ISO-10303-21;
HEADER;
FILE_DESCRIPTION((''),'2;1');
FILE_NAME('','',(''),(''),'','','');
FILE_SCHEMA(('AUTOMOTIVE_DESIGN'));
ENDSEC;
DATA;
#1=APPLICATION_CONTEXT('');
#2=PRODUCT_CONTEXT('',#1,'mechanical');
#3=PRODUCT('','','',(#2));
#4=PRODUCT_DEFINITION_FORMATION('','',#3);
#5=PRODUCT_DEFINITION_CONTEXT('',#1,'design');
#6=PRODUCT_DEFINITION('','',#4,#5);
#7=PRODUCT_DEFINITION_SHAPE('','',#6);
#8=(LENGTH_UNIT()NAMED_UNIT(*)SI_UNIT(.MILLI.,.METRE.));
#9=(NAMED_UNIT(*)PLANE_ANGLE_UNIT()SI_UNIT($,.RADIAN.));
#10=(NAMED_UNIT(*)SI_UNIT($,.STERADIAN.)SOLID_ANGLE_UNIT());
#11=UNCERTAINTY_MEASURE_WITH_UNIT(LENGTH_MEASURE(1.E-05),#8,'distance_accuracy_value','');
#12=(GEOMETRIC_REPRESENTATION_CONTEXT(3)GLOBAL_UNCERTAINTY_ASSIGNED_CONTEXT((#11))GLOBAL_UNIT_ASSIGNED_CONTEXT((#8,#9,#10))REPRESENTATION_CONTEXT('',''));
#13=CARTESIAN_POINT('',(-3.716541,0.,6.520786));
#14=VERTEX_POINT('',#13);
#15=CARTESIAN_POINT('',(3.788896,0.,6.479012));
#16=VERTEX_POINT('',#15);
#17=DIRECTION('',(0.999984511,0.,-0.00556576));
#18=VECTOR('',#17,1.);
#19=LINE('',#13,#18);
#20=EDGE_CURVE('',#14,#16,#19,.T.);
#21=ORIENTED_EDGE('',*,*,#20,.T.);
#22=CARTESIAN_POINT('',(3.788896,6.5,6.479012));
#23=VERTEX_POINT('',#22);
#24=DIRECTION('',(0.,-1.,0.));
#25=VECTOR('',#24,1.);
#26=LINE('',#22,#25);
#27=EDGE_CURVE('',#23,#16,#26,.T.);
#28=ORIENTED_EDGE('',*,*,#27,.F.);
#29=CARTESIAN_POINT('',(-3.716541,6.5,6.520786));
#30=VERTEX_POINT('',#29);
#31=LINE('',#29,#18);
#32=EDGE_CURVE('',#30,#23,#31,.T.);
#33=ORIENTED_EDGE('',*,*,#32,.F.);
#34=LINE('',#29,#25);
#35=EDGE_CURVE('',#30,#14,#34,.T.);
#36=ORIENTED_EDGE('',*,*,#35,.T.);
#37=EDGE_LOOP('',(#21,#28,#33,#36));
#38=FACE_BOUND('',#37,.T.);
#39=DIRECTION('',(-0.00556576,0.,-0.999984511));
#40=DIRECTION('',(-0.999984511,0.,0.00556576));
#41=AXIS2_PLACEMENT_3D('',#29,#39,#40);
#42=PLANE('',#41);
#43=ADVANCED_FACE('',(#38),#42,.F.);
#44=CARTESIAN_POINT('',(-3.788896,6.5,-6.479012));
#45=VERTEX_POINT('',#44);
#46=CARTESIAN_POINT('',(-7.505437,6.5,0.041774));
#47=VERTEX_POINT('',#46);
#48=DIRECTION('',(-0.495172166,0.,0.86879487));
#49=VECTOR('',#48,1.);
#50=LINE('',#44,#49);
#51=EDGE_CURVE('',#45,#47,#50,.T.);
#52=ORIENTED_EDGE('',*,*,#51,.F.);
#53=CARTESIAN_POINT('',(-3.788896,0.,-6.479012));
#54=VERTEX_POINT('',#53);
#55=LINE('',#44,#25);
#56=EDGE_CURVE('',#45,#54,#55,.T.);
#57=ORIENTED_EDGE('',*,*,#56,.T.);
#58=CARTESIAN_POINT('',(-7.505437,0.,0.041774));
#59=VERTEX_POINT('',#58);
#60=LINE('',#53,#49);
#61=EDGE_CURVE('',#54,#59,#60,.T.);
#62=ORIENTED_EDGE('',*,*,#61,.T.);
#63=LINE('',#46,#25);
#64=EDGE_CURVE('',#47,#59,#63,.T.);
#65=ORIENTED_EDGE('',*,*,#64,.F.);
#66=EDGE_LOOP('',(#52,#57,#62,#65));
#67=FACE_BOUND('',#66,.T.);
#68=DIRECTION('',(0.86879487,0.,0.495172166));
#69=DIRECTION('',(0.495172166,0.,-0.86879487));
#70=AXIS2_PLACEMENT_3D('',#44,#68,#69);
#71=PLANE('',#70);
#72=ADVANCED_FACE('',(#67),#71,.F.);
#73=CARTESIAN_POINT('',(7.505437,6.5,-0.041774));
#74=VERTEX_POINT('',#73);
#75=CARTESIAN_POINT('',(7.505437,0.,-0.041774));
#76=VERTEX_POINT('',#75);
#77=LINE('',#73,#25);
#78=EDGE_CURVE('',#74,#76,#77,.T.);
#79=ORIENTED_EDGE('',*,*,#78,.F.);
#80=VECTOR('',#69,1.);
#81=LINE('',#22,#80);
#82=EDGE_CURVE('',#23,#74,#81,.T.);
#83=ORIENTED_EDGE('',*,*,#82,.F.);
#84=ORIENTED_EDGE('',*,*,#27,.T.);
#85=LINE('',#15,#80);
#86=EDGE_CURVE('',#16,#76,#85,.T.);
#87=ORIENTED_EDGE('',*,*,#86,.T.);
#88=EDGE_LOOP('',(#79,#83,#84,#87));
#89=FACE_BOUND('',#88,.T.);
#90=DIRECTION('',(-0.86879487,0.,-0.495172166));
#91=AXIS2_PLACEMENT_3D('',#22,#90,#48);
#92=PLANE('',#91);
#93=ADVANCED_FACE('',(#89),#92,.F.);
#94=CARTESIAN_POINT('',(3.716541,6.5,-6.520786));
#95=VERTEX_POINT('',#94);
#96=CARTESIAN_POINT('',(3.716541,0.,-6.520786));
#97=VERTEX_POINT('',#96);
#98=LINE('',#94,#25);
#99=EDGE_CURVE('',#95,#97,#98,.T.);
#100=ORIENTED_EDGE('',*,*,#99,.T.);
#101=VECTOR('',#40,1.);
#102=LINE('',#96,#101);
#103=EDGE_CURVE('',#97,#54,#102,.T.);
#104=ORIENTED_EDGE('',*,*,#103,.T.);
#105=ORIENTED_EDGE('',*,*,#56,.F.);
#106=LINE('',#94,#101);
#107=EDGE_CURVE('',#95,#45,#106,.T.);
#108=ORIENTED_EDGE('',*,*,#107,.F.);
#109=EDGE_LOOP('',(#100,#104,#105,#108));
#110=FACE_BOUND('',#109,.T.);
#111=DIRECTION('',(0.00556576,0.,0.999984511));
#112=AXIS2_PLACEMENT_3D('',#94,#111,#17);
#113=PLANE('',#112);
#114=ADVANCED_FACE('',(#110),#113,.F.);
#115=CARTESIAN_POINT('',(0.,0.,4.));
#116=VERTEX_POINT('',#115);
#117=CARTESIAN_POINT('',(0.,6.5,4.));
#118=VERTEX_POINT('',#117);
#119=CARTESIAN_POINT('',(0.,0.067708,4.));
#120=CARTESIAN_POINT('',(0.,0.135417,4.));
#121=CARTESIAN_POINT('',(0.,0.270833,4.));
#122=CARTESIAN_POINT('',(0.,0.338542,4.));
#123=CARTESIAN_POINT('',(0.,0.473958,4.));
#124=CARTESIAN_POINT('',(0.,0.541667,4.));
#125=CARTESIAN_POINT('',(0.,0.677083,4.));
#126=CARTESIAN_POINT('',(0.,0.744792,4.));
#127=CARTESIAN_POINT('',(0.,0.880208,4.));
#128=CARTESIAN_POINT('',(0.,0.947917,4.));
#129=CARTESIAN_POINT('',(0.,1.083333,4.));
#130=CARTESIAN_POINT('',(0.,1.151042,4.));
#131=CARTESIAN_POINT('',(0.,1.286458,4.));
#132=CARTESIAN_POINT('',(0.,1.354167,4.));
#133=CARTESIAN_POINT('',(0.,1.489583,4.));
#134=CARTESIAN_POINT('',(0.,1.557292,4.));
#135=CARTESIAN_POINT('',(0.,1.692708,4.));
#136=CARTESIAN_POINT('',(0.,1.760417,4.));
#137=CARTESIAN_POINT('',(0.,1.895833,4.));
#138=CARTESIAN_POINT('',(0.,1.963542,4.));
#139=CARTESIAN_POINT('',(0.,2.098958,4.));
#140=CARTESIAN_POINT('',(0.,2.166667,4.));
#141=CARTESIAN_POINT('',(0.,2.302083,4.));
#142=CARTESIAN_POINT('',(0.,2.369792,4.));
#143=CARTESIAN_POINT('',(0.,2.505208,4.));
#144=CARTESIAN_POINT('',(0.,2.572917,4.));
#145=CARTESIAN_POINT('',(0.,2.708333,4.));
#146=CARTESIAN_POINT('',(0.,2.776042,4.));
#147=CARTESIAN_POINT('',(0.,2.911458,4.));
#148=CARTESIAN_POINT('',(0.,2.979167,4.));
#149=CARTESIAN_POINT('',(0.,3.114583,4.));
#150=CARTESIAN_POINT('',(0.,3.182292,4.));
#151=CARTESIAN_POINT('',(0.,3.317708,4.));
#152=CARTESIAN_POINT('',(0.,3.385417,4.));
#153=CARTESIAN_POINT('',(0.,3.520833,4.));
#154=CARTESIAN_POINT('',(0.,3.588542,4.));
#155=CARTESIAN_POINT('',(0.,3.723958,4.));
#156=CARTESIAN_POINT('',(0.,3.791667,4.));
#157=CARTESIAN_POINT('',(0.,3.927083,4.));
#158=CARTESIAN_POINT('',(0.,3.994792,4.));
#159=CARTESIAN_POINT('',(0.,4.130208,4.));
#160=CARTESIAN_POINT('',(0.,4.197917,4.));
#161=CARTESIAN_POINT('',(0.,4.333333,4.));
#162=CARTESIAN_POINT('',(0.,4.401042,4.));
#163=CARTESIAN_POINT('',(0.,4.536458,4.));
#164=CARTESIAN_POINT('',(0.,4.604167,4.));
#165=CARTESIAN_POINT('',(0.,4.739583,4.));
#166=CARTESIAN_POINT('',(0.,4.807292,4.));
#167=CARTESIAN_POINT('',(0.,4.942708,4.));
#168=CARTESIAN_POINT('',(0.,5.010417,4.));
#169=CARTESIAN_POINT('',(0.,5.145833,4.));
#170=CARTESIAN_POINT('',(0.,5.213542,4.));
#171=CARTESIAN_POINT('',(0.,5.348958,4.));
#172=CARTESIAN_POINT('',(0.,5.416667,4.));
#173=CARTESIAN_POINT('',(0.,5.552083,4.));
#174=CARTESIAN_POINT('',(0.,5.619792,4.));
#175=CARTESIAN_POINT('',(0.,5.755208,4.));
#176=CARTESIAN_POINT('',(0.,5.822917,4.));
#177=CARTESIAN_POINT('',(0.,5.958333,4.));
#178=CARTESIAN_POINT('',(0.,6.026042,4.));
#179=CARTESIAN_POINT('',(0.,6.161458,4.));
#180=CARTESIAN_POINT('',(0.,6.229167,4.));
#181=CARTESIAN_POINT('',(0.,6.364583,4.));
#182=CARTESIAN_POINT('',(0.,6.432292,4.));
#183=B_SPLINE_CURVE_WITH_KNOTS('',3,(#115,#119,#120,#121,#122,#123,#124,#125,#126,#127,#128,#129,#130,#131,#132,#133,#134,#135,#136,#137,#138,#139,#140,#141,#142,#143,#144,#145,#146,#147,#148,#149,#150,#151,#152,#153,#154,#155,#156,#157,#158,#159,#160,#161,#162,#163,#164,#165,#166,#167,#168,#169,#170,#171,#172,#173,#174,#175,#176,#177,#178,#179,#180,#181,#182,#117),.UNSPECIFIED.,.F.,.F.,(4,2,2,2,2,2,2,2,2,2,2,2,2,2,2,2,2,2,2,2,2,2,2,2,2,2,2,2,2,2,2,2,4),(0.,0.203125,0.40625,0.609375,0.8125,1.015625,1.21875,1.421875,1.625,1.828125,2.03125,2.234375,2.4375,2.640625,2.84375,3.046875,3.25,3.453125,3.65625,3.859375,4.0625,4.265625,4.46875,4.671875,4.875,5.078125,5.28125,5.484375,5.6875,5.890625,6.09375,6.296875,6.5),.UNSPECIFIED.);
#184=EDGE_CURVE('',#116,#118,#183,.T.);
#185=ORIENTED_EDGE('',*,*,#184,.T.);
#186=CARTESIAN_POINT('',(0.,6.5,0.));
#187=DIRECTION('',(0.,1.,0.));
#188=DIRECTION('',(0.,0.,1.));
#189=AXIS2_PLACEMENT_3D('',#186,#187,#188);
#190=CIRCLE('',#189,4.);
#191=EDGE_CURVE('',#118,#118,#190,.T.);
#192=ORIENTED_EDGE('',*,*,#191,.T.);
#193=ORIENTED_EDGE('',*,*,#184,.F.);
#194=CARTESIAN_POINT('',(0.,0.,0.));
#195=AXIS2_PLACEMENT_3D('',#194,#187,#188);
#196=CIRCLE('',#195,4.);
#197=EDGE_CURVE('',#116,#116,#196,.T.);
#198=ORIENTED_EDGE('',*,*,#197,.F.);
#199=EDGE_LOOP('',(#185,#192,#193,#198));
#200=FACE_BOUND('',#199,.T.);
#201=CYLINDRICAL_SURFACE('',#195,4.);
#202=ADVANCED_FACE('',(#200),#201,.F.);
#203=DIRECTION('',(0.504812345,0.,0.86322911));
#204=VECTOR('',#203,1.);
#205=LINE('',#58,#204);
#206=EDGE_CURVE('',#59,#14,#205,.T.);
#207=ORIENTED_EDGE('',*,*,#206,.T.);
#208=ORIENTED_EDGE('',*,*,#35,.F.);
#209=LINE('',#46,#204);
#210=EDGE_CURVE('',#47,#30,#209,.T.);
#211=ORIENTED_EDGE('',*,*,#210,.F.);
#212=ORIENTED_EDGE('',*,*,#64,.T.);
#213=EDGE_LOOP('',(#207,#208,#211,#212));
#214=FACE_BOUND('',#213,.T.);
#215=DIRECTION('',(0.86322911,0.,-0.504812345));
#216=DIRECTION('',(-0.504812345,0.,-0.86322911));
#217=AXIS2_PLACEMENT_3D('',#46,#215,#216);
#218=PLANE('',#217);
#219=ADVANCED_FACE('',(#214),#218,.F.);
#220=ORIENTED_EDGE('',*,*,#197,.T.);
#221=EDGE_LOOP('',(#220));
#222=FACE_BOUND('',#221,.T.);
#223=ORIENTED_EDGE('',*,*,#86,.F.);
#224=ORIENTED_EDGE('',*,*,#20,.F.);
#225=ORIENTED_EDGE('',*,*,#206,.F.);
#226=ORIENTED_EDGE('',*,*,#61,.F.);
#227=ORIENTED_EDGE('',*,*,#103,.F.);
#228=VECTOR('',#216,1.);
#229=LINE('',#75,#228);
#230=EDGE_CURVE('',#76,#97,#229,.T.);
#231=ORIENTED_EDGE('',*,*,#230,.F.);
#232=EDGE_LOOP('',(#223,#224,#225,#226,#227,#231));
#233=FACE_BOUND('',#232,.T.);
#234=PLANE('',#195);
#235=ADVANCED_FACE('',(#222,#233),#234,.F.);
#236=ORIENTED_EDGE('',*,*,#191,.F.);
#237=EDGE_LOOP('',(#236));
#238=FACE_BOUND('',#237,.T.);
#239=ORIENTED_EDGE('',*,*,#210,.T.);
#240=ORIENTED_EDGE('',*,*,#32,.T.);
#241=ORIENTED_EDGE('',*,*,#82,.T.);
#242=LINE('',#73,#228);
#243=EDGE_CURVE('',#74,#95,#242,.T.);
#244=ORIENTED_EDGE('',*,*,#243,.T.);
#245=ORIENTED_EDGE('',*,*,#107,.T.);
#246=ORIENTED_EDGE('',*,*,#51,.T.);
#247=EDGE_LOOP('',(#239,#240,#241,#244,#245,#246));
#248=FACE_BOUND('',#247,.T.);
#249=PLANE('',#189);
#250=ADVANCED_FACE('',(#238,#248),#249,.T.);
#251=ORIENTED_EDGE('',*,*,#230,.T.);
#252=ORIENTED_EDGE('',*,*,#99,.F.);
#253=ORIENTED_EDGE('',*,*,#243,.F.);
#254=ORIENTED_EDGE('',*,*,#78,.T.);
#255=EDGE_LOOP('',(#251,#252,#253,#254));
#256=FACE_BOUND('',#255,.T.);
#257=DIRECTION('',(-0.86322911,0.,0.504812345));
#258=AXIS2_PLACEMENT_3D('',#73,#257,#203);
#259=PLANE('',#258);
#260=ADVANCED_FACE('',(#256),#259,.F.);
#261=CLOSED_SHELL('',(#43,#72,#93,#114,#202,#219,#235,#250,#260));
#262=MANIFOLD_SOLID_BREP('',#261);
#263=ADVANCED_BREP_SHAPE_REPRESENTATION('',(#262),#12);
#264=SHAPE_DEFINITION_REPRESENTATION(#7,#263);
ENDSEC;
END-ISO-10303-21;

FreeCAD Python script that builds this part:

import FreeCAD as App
import Part
import Sketcher

V = App.Vector
Q = App.Units.Quantity


def add_polygon(sketch, points):
    """Adds a closed chain of lines whose ends are joined by coincident constraints."""
    first, n = sketch.GeometryCount, len(points)
    for a, b in zip(points, points[1:] + points[:1]):
        sketch.addGeometry(Part.LineSegment(App.Vector(*a, 0), App.Vector(*b, 0)), False)
    for i in range(n):
        sketch.addConstraint(Sketcher.Constraint("Coincident", first + i, 2, first + (i + 1) % n, 1))

doc = App.newDocument("Part")
body = doc.addObject("PartDesign::Body", "Body")

# Sketch on XZ plane
sketch1 = doc.addObject("Sketcher::SketchObject", "Sketch")
body.addObject(sketch1)
sketch1.AttachmentSupport = (doc.XZ_Plane, [""])
sketch1.MapMode = "FlatFace"
add_polygon(sketch1, [(3.788896, 6.479012), (7.505437, -0.041774), (3.716541, -6.520786), (-3.788896, -6.479012), (-7.505437, 0.041774), (-3.716541, 6.520786)])  # lines 0-5
sketch1.addConstraint([
    Sketcher.Constraint("Symmetric", 0, 2, 3, 2, -1, 1),
    Sketcher.Constraint("Symmetric", 1, 2, 4, 2, -1, 1),
    Sketcher.Constraint("Symmetric", 2, 2, 5, 2, -1, 1),
    Sketcher.Constraint("Equal", 0, 1),
    Sketcher.Constraint("Equal", 1, 2),
    Sketcher.Constraint("DistanceY", 2, 2, 4, 2, Q("12.999799 mm")),
    Sketcher.Constraint("DistanceX", -1, 1, 1, 2, Q("3.716541 mm")),
    Sketcher.Constraint("DistanceY", 2, 2, 0, 2, Q("6.437238 mm")),
    Sketcher.Constraint("DistanceX", 3, 2, 2, 2, Q("3.716541 mm")),
])
pad1 = doc.addObject("PartDesign::Pad", "Pad")
body.addObject(pad1)
pad1.Profile = sketch1
pad1.Length = 6.5
pad1.Reversed = True

# Sketch on XZ plane
sketch2 = doc.addObject("Sketcher::SketchObject", "Sketch001")
body.addObject(sketch2)
sketch2.AttachmentSupport = (doc.XZ_Plane, [""])
sketch2.MapMode = "FlatFace"
sketch2.AttachmentOffset = App.Placement(V(0, 0, -6.5), App.Rotation())
sketch2.addGeometry(Part.Circle(V(0, 0, 0), V(0, 0, 1), 4), False)
sketch2.addConstraint([
    Sketcher.Constraint("Coincident", 0, 3, -1, 1),
    Sketcher.Constraint("Diameter", 0, Q("8 mm")),
])
pocket1 = doc.addObject("PartDesign::Pocket", "Pocket")
body.addObject(pocket1)
pocket1.Profile = sketch2
pocket1.Type = "ThroughAll"
pocket1.Reversed = True

doc.recompute()
